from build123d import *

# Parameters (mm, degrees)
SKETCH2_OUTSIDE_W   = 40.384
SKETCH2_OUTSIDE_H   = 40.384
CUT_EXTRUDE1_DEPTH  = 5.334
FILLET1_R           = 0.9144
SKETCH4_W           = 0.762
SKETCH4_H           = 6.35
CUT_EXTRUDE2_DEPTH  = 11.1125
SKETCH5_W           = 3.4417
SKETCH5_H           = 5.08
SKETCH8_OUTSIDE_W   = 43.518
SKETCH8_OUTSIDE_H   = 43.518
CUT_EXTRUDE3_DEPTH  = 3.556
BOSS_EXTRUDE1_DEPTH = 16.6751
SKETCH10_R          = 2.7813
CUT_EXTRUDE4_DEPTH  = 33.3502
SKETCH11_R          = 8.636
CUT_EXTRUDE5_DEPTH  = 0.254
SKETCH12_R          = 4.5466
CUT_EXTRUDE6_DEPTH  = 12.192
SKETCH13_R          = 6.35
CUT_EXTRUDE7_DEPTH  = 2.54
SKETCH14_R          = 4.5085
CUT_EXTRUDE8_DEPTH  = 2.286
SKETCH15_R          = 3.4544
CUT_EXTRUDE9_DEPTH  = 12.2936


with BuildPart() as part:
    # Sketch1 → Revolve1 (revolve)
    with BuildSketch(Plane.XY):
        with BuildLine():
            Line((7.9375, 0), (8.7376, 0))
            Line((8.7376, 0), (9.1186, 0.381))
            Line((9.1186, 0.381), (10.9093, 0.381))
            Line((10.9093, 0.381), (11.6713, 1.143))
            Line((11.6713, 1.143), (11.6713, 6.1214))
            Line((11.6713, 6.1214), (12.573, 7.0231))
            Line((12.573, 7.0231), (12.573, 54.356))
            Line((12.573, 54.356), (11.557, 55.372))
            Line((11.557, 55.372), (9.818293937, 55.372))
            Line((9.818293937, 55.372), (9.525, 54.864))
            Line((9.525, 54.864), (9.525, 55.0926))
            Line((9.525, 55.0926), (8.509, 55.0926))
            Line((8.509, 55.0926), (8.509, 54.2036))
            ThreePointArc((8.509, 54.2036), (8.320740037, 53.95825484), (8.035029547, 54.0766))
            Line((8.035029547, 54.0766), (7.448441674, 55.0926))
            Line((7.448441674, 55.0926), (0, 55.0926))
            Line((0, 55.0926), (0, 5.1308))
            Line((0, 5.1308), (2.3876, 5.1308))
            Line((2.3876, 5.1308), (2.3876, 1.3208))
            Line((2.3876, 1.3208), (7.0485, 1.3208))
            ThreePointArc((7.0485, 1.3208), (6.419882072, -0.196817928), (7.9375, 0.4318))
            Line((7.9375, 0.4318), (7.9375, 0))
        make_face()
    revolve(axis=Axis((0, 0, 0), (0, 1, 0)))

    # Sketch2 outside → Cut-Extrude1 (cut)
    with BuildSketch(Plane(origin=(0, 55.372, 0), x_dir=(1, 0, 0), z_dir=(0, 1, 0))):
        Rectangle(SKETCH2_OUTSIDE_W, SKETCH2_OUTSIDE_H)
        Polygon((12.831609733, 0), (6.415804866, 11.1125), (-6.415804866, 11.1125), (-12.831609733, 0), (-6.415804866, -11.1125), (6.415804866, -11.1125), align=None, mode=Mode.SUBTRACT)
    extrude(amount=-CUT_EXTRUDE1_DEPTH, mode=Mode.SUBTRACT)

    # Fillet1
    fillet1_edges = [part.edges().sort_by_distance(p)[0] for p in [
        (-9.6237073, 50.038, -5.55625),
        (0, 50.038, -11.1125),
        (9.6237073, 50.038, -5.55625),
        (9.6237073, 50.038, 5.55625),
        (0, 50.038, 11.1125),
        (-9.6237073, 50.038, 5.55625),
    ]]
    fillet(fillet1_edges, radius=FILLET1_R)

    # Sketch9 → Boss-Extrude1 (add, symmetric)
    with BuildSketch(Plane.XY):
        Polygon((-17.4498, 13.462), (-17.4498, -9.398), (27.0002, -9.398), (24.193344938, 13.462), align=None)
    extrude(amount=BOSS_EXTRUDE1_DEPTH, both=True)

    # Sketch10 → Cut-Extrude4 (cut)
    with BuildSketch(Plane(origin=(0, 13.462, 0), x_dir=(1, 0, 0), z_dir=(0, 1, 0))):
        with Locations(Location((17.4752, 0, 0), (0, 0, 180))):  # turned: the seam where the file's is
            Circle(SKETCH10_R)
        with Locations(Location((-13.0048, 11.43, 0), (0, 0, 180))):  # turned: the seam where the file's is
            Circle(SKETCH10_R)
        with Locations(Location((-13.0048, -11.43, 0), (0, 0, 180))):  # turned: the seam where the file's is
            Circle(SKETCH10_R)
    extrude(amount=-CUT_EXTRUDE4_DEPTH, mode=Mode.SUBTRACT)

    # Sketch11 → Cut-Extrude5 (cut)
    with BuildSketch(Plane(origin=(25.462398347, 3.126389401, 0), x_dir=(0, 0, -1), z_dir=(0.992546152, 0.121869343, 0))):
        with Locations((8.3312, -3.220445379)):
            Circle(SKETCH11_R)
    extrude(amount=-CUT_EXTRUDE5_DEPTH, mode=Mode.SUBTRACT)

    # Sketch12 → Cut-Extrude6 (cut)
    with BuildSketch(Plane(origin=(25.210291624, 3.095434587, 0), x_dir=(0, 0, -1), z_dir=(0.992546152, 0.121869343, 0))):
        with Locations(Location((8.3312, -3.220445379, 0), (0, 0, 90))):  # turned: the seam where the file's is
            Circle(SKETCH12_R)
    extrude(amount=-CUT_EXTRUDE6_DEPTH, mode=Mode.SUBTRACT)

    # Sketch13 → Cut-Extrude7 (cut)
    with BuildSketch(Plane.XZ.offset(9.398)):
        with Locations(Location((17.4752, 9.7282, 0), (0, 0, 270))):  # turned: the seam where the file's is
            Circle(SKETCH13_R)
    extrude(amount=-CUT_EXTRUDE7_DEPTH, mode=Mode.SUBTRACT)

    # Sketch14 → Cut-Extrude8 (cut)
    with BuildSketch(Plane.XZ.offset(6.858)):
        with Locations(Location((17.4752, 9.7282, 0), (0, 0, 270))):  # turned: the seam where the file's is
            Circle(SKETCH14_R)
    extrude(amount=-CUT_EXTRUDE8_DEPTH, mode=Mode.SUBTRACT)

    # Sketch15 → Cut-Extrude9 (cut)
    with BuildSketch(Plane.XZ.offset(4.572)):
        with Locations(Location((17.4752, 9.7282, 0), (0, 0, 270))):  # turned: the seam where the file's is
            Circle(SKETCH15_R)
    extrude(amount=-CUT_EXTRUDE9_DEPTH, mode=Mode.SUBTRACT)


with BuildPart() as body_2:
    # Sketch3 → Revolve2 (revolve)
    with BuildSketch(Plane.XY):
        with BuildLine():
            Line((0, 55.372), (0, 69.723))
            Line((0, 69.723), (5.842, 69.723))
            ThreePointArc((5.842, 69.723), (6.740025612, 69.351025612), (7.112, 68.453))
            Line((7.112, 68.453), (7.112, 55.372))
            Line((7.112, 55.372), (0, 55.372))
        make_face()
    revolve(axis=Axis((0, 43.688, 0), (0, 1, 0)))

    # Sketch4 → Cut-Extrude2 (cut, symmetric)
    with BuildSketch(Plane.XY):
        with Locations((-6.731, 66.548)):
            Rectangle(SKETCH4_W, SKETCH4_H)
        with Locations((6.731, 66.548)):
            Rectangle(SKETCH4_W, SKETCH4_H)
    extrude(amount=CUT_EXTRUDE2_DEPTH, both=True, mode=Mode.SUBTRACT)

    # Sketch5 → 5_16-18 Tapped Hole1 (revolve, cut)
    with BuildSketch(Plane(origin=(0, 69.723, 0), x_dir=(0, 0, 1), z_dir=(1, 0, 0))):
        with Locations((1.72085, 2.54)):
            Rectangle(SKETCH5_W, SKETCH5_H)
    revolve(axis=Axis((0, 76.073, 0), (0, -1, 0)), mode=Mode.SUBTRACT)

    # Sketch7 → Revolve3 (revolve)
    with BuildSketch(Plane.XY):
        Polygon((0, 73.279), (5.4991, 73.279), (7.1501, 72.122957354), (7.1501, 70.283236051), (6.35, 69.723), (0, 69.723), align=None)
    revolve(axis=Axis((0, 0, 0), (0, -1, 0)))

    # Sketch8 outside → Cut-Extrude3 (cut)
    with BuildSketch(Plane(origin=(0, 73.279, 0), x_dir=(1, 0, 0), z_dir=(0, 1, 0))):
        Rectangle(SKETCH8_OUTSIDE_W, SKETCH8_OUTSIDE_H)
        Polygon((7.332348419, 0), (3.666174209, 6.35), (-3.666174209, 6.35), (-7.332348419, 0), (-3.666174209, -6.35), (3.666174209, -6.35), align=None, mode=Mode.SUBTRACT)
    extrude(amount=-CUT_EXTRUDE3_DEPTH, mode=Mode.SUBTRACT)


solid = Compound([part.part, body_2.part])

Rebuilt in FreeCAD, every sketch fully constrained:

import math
import FreeCAD as App
import Part
import Sketcher
Q = App.Units.Quantity


def edges_at(feature, points):
    """Names of the edges that pass closest to the given points."""
    edges = feature.Shape.Edges
    near = lambda p: min(range(len(edges)), key=lambda i: edges[i].distToShape(Part.Vertex(*p))[0])
    return sorted({f"Edge{near(p) + 1}" for p in points})


def add_polygon(sketch, points):
    """Adds a closed chain of lines whose ends are joined by coincident constraints."""
    first, n = sketch.GeometryCount, len(points)
    for a, b in zip(points, points[1:] + points[:1]):
        sketch.addGeometry(Part.LineSegment(App.Vector(*a, 0), App.Vector(*b, 0)), False)
    for i in range(n):
        sketch.addConstraint(Sketcher.Constraint("Coincident", first + i, 2, first + (i + 1) % n, 1))

doc = App.newDocument("Part")
body = doc.addObject("PartDesign::Body", "Body")

# Sketch on XY plane
sketch1 = body.newObject("Sketcher::SketchObject", "Sketch")
sketch1.AttachmentSupport = (doc.getObject("XY_Plane"), [""])
sketch1.MapMode = "FlatFace"
sketch1.addGeometry([
    Part.LineSegment(App.Vector(7.94, 0, 0), App.Vector(8.74, 0, 0)),  # 0
    Part.LineSegment(App.Vector(8.74, 0, 0), App.Vector(9.12, 0.38, 0)),  # 1
    Part.LineSegment(App.Vector(9.12, 0.38, 0), App.Vector(10.91, 0.38, 0)),  # 2
    Part.LineSegment(App.Vector(10.91, 0.38, 0), App.Vector(11.67, 1.14, 0)),  # 3
    Part.LineSegment(App.Vector(11.67, 1.14, 0), App.Vector(11.67, 6.12, 0)),  # 4
    Part.LineSegment(App.Vector(11.67, 6.12, 0), App.Vector(12.57, 7.02, 0)),  # 5
    Part.LineSegment(App.Vector(12.57, 7.02, 0), App.Vector(12.57, 54.36, 0)),  # 6
    Part.LineSegment(App.Vector(12.57, 54.36, 0), App.Vector(11.56, 55.37, 0)),  # 7
    Part.LineSegment(App.Vector(11.56, 55.37, 0), App.Vector(9.82, 55.37, 0)),  # 8
    Part.LineSegment(App.Vector(9.82, 55.37, 0), App.Vector(9.53, 54.86, 0)),  # 9
    Part.LineSegment(App.Vector(9.53, 54.86, 0), App.Vector(9.53, 55.09, 0)),  # 10
    Part.LineSegment(App.Vector(9.53, 55.09, 0), App.Vector(8.51, 55.09, 0)),  # 11
    Part.LineSegment(App.Vector(8.51, 55.09, 0), App.Vector(8.51, 54.2, 0)),  # 12
    Part.ArcOfCircle(Part.Circle(App.Vector(8.26, 54.2, 0), App.Vector(0, 0, 1), 0.25), math.radians(-150), math.radians(0)),  # 13
    Part.LineSegment(App.Vector(8.04, 54.08, 0), App.Vector(7.45, 55.09, 0)),  # 14
    Part.LineSegment(App.Vector(7.45, 55.09, 0), App.Vector(0, 55.09, 0)),  # 15
    Part.LineSegment(App.Vector(0, 55.09, 0), App.Vector(0, 5.13, 0)),  # 16
    Part.LineSegment(App.Vector(0, 5.13, 0), App.Vector(2.39, 5.13, 0)),  # 17
    Part.LineSegment(App.Vector(2.39, 5.13, 0), App.Vector(2.39, 1.32, 0)),  # 18
    Part.LineSegment(App.Vector(2.39, 1.32, 0), App.Vector(7.05, 1.32, 0)),  # 19
    Part.ArcOfCircle(Part.Circle(App.Vector(7.05, 0.43, 0), App.Vector(0, 0, 1), 0.89), math.radians(90), math.radians(360)),  # 20
    Part.LineSegment(App.Vector(7.94, 0.43, 0), App.Vector(7.94, 0, 0)),  # 21
], False)
sketch1.addConstraint([
    Sketcher.Constraint("Coincident", 0, 2, 1, 1),
    Sketcher.Constraint("Coincident", 1, 2, 2, 1),
    Sketcher.Constraint("Coincident", 2, 2, 3, 1),
    Sketcher.Constraint("Coincident", 3, 2, 4, 1),
    Sketcher.Constraint("Coincident", 4, 2, 5, 1),
    Sketcher.Constraint("Coincident", 5, 2, 6, 1),
    Sketcher.Constraint("Coincident", 6, 2, 7, 1),
    Sketcher.Constraint("Coincident", 7, 2, 8, 1),
    Sketcher.Constraint("Coincident", 8, 2, 9, 1),
    Sketcher.Constraint("Coincident", 9, 2, 10, 1),
    Sketcher.Constraint("Coincident", 10, 2, 11, 1),
    Sketcher.Constraint("Coincident", 11, 2, 12, 1),
    Sketcher.Constraint("Tangent", 12, 2, 13, 2),
    Sketcher.Constraint("Tangent", 13, 1, 14, 1),
    Sketcher.Constraint("Coincident", 14, 2, 15, 1),
    Sketcher.Constraint("Coincident", 15, 2, 16, 1),
    Sketcher.Constraint("Coincident", 16, 2, 17, 1),
    Sketcher.Constraint("Coincident", 17, 2, 18, 1),
    Sketcher.Constraint("Coincident", 18, 2, 19, 1),
    Sketcher.Constraint("Tangent", 19, 2, 20, 1),
    Sketcher.Constraint("Tangent", 20, 2, 21, 1),
    Sketcher.Constraint("Coincident", 21, 2, 0, 1),
    Sketcher.Constraint("Horizontal", 0),
    Sketcher.Constraint("Horizontal", 2),
    Sketcher.Constraint("Vertical", 4),
    Sketcher.Constraint("Vertical", 6),
    Sketcher.Constraint("Horizontal", 8),
    Sketcher.Constraint("Vertical", 10),
    Sketcher.Constraint("Horizontal", 11),
    Sketcher.Constraint("Vertical", 12),
    Sketcher.Constraint("Horizontal", 15),
    Sketcher.Constraint("Vertical", 16),
    Sketcher.Constraint("Horizontal", 17),
    Sketcher.Constraint("Vertical", 18),
    Sketcher.Constraint("Horizontal", 19),
    Sketcher.Constraint("Vertical", 21),
    Sketcher.Constraint("PointOnObject", 0, 2, -1),
    Sketcher.Constraint("PointOnObject", 15, 2, -2),
    Sketcher.Constraint("Parallel", 1, 3),
    Sketcher.Constraint("Parallel", 3, 5),
    Sketcher.Constraint("Perpendicular", 5, 7),
    Sketcher.Constraint("Horizontal", 11, 2, 14, 2),
    Sketcher.Constraint("Radius", 13, Q("0.01 in")),
    Sketcher.Constraint("Angle", 1, Q("45 deg")),
    Sketcher.Constraint("Angle", 9, Q("-120 deg")),
    Sketcher.Constraint("Angle", 14, Q("120 deg")),
    Sketcher.Constraint("Radius", 20, Q("0.035 in")),
    Sketcher.Constraint("DistanceX", 11, 2, 11, 1, Q("0.04 in")),
    Sketcher.Constraint("DistanceY", 18, 2, 18, 1, Q("0.15 in")),
    Sketcher.Constraint("DistanceX", 17, 1, 17, 2, Q("0.094 in")),
    Sketcher.Constraint("DistanceY", 4, 1, 4, 2, Q("0.196 in")),
    Sketcher.Constraint("DistanceY", 10, 1, 10, 2, Q("0.009 in")),
    Sketcher.Constraint("DistanceY", 12, 2, 12, 1, Q("0.035 in")),
    Sketcher.Constraint("DistanceY", 16, 2, 16, 1, Q("1.967 in")),
    Sketcher.Constraint("DistanceY", 21, 2, 21, 1, Q("0.017 in")),
    Sketcher.Constraint("DistanceY", -1, 1, 6, 2, Q("2.14 in")),
    Sketcher.Constraint("DistanceY", -1, 1, 7, 2, Q("2.18 in")),
    Sketcher.Constraint("DistanceX", 2, 2, 3, 2, Q("0.03 in")),
    Sketcher.Constraint("DistanceX", 13, 3, 6, 2, Q("0.17 in")),
    Sketcher.Constraint("DistanceX", 17, 2, 0, 2, Q("0.25 in")),
    Sketcher.Constraint("DistanceX", 0, 1, 0, 2, Q("0.0315 in")),
    Sketcher.Constraint("DistanceX", 2, 1, 2, 2, Q("0.0705 in")),
    Sketcher.Constraint("DistanceY", 6, 1, 6, 2, Q("1.8635 in")),
    Sketcher.Constraint("DistanceX", -1, 1, 1, 2, Q("0.359 in")),
])
revolution = body.newObject("PartDesign::Revolution", "Revolution")
revolution.Profile = sketch1
revolution.ReferenceAxis = (sketch1, ["V_Axis"])
revolution.Angle = 360

# Sketch on XZ plane
sketch2 = body.newObject("Sketcher::SketchObject", "Sketch001")
sketch2.AttachmentSupport = (doc.getObject("XZ_Plane"), [""])
sketch2.MapMode = "FlatFace"
sketch2.AttachmentOffset = App.Placement(App.Vector(0, 0, -2.18 * 25.4), App.Rotation())
add_polygon(sketch2, [(-20, -20), (-20, 20), (20, 20), (20, -20)])  # lines 0-3
add_polygon(sketch2, [(6, -11), (13, 0), (6, 11), (-6, 11), (-13, 0), (-6, -11)])  # lines 4-9
sketch2.addConstraint([
    Sketcher.Constraint("Vertical", 0),
    Sketcher.Constraint("Horizontal", 1),
    Sketcher.Constraint("Vertical", 2),
    Sketcher.Constraint("Horizontal", 3),
    Sketcher.Constraint("Horizontal", 6),
    Sketcher.Constraint("Horizontal", 9),
    Sketcher.Constraint("Symmetric", 0, 2, 2, 2, -1, 1),
    Sketcher.Constraint("Symmetric", 4, 2, 7, 2, -1, 1),
    Sketcher.Constraint("Symmetric", 5, 2, 8, 2, -1, 1),
    Sketcher.Constraint("PointOnObject", 4, 2, -1),
    Sketcher.Constraint("Parallel", 4, 7),
    Sketcher.Constraint("Vertical", 6, 2, 8, 2),
    Sketcher.Constraint("Equal", 3, 0),
    Sketcher.Constraint("Angle", 4, Q("60 deg")),
    Sketcher.Constraint("DistanceY", -1, 1, 5, 2, Q("0.4375 in")),
    Sketcher.Constraint("DistanceX", 1, 1, 1, 2, Q("40.384 mm")),
    Sketcher.Constraint("DistanceX", 6, 2, 6, 1, Q("12.83161 mm")),
])
pocket1 = body.newObject("PartDesign::Pocket", "Pocket")
pocket1.Profile = sketch2
pocket1.Length = Q("0.21 in")
pocket1.Reversed = True
doc.recompute()

fillet = body.newObject("PartDesign::Fillet", "Fillet")
fillet.Base = (pocket1, edges_at(pocket1, [
    (-9.624, 50.038, -5.556),
    (0, 50.038, -11.113),
    (9.624, 50.038, -5.556),
    (9.624, 50.038, 5.556),
    (0, 50.038, 11.113),
    (-9.624, 50.038, 5.556),
]))
fillet.Radius = Q("0.036 in")

# Sketch on XY plane
sketch3 = body.newObject("Sketcher::SketchObject", "Sketch002")
sketch3.AttachmentSupport = (doc.getObject("XY_Plane"), [""])
sketch3.MapMode = "FlatFace"
add_polygon(sketch3, [(-17, 13), (-17, -9), (27, -9), (24, 13)])  # lines 0-3
sketch3.addConstraint([
    Sketcher.Constraint("Vertical", 0),
    Sketcher.Constraint("Horizontal", 1),
    Sketcher.Constraint("Horizontal", 3),
    Sketcher.Constraint("DistanceY", 0, 2, 0, 1, Q("0.9 in")),
    Sketcher.Constraint("Angle", 2, Q("97 deg")),
    Sketcher.Constraint("DistanceX", 1, 1, 1, 2, Q("1.75 in")),
    Sketcher.Constraint("DistanceY", 0, 2, -1, 1, Q("0.37 in")),
    Sketcher.Constraint("DistanceX", 0, 2, -1, 1, Q("0.687 in")),
])
pad1 = body.newObject("PartDesign::Pad", "Pad")
pad1.Profile = sketch3
pad1.Length = Q("1.313 in")
pad1.Midplane = True

# Sketch on XZ plane
sketch4 = body.newObject("Sketcher::SketchObject", "Sketch003")
sketch4.AttachmentSupport = (doc.getObject("XZ_Plane"), [""])
sketch4.MapMode = "FlatFace"
sketch4.AttachmentOffset = App.Placement(App.Vector(0, 0, -0.53 * 25.4), App.Rotation())
sketch4.addGeometry([
    Part.Circle(App.Vector(17.5, 0, 0), App.Vector(0, 0, 1), 2.8),
    Part.Circle(App.Vector(-13, -11.4, 0), App.Vector(0, 0, 1), 2.8),
    Part.Circle(App.Vector(-13, 11.4, 0), App.Vector(0, 0, 1), 2.8),
], False)
sketch4.addConstraint([
    Sketcher.Constraint("Equal", 0, 1),
    Sketcher.Constraint("Equal", 1, 2),
    Sketcher.Constraint("Symmetric", 1, 3, 2, 3, -1),
    Sketcher.Constraint("PointOnObject", 0, 3, -1),
    Sketcher.Constraint("Diameter", 0, Q("0.219 in")),
    Sketcher.Constraint("DistanceX", 1, 3, 0, 3, Q("1.2 in")),
    Sketcher.Constraint("DistanceY", 1, 3, 2, 3, Q("0.9 in")),
    Sketcher.Constraint("DistanceX", -1, 1, 0, 3, Q("0.688 in")),
])
pocket2 = body.newObject("PartDesign::Pocket", "Pocket001")
pocket2.Profile = sketch4
pocket2.Length = Q("1.313 in")
pocket2.Reversed = True

# Sketch on an angled plane
sketch5 = body.newObject("Sketcher::SketchObject", "Sketch004")
sketch5.Placement = App.Placement(App.Vector(25.462398, 3.126389, 0), App.Rotation(App.Vector(0, 0, -1), App.Vector(-0.121869343, 0.992546152, 0), App.Vector(0.992546152, 0.121869343, 0), "ZXY"))
sketch5.addGeometry(Part.Circle(App.Vector(8, -3, 0), App.Vector(0, 0, 1), 9), False)
sketch5.addConstraint([
    Sketcher.Constraint("Diameter", 0, Q("0.68 in")),
    Sketcher.Constraint("DistanceX", -1, 1, 0, 3, Q("0.328 in")),
    Sketcher.Constraint("DistanceY", 0, 3, -1, 1, Q("3.220445 mm")),
])
pocket3 = body.newObject("PartDesign::Pocket", "Pocket002")
pocket3.Profile = sketch5
pocket3.Length = Q("0.01 in")

# Sketch on an angled plane
sketch6 = body.newObject("Sketcher::SketchObject", "Sketch005")
sketch6.Placement = App.Placement(App.Vector(25.210292, 3.095435, 0), App.Rotation(App.Vector(0, 0, -1), App.Vector(-0.121869343, 0.992546152, 0), App.Vector(0.992546152, 0.121869343, 0), "ZXY"))
sketch6.addGeometry(Part.Circle(App.Vector(8.3, -3.2, 0), App.Vector(0, 0, 1), 4.5), False)
sketch6.addConstraint([
    Sketcher.Constraint("Diameter", 0, Q("0.358 in")),
    Sketcher.Constraint("DistanceX", -1, 1, 0, 3, Q("0.328 in")),
    Sketcher.Constraint("DistanceY", 0, 3, -1, 1, Q("3.220445 mm")),
])
pocket4 = body.newObject("PartDesign::Pocket", "Pocket003")
pocket4.Profile = sketch6
pocket4.Length = Q("0.48 in")

# Sketch on XZ plane
sketch7 = body.newObject("Sketcher::SketchObject", "Sketch006")
sketch7.AttachmentSupport = (doc.getObject("XZ_Plane"), [""])
sketch7.MapMode = "FlatFace"
sketch7.AttachmentOffset = App.Placement(App.Vector(0, 0, 0.37 * 25.4), App.Rotation())
sketch7.addGeometry(Part.Circle(App.Vector(17, 10, 0), App.Vector(0, 0, 1), 6), False)
sketch7.addConstraint([
    Sketcher.Constraint("Diameter", 0, Q("0.5 in")),
    Sketcher.Constraint("DistanceX", -1, 1, 0, 3, Q("0.688 in")),
    Sketcher.Constraint("DistanceY", -1, 1, 0, 3, Q("0.383 in")),
])
pocket5 = body.newObject("PartDesign::Pocket", "Pocket004")
pocket5.Profile = sketch7
pocket5.Length = Q("0.1 in")

# Sketch on XZ plane
sketch8 = body.newObject("Sketcher::SketchObject", "Sketch007")
sketch8.AttachmentSupport = (doc.getObject("XZ_Plane"), [""])
sketch8.MapMode = "FlatFace"
sketch8.AttachmentOffset = App.Placement(App.Vector(0, 0, 0.27 * 25.4), App.Rotation())
sketch8.addGeometry(Part.Circle(App.Vector(17.5, 9.7, 0), App.Vector(0, 0, 1), 4.5), False)
sketch8.addConstraint([
    Sketcher.Constraint("Diameter", 0, Q("0.355 in")),
    Sketcher.Constraint("DistanceX", -1, 1, 0, 3, Q("0.688 in")),
    Sketcher.Constraint("DistanceY", -1, 1, 0, 3, Q("0.383 in")),
])
pocket6 = body.newObject("PartDesign::Pocket", "Pocket005")
pocket6.Profile = sketch8
pocket6.Length = Q("0.09 in")

# Sketch on XZ plane
sketch9 = body.newObject("Sketcher::SketchObject", "Sketch008")
sketch9.AttachmentSupport = (doc.getObject("XZ_Plane"), [""])
sketch9.MapMode = "FlatFace"
sketch9.AttachmentOffset = App.Placement(App.Vector(0, 0, 0.18 * 25.4), App.Rotation())
sketch9.addGeometry(Part.Circle(App.Vector(17.5, 9.7, 0), App.Vector(0, 0, 1), 3.5), False)
sketch9.addConstraint([
    Sketcher.Constraint("Diameter", 0, Q("0.272 in")),
    Sketcher.Constraint("DistanceX", -1, 1, 0, 3, Q("0.688 in")),
    Sketcher.Constraint("DistanceY", -1, 1, 0, 3, Q("0.383 in")),
])
pocket7 = body.newObject("PartDesign::Pocket", "Pocket006")
pocket7.Profile = sketch9
pocket7.Length = Q("0.484 in")
body2 = doc.addObject("PartDesign::Body", "Body001")

# Sketch on XY plane
sketch10 = body2.newObject("Sketcher::SketchObject", "Sketch009")
sketch10.AttachmentSupport = (doc.getObject("XY_Plane001"), [""])
sketch10.MapMode = "FlatFace"
sketch10.addGeometry([
    Part.LineSegment(App.Vector(0, 69.7, 0), App.Vector(0, 55.4, 0)),  # 0
    Part.LineSegment(App.Vector(0, 55.4, 0), App.Vector(7.1, 55.4, 0)),  # 1
    Part.LineSegment(App.Vector(7.1, 55.4, 0), App.Vector(7.1, 68.5, 0)),  # 2
    Part.ArcOfCircle(Part.Circle(App.Vector(5.8, 68.5, 0), App.Vector(0, 0, 1), 1.3), math.radians(0), math.radians(90)),  # 3
    Part.LineSegment(App.Vector(5.8, 69.7, 0), App.Vector(0, 69.7, 0)),  # 4
], False)
sketch10.addConstraint([
    Sketcher.Constraint("Coincident", 0, 2, 1, 1),
    Sketcher.Constraint("Coincident", 1, 2, 2, 1),
    Sketcher.Constraint("Tangent", 2, 2, 3, 1),
    Sketcher.Constraint("Tangent", 3, 2, 4, 1),
    Sketcher.Constraint("Coincident", 4, 2, 0, 1),
    Sketcher.Constraint("Vertical", 0),
    Sketcher.Constraint("Horizontal", 1),
    Sketcher.Constraint("Vertical", 2),
    Sketcher.Constraint("Horizontal", 4),
    Sketcher.Constraint("PointOnObject", 0, 2, -2),
    Sketcher.Constraint("Radius", 3, Q("0.05 in")),
    Sketcher.Constraint("DistanceX", 1, 1, 1, 2, Q("0.28 in")),
    Sketcher.Constraint("DistanceY", 0, 2, 0, 1, Q("0.565 in")),
    Sketcher.Constraint("DistanceY", -1, 1, 0, 2, Q("2.18 in")),
])
revolution2 = body2.newObject("PartDesign::Revolution", "Revolution001")
revolution2.Profile = sketch10
revolution2.ReferenceAxis = (sketch10, ["V_Axis"])
revolution2.Angle = 360

# Sketch on XY plane
sketch11 = body2.newObject("Sketcher::SketchObject", "Sketch010")
sketch11.AttachmentSupport = (doc.getObject("XY_Plane001"), [""])
sketch11.MapMode = "FlatFace"
add_polygon(sketch11, [(-7.1, 69.7), (-7.1, 63.4), (-6.3, 63.4), (-6.3, 69.7)])  # lines 0-3
add_polygon(sketch11, [(6.3, 69.7), (6.3, 63.4), (7.1, 63.4), (7.1, 69.7)])  # lines 4-7
sketch11.addConstraint([
    Sketcher.Constraint("Vertical", 0),
    Sketcher.Constraint("Horizontal", 1),
    Sketcher.Constraint("Vertical", 2),
    Sketcher.Constraint("Horizontal", 3),
    Sketcher.Constraint("Vertical", 4),
    Sketcher.Constraint("Horizontal", 5),
    Sketcher.Constraint("Vertical", 6),
    Sketcher.Constraint("Horizontal", 7),
    Sketcher.Constraint("Symmetric", 1, 2, 4, 2, -2),
    Sketcher.Constraint("Symmetric", 3, 2, 6, 2, -2),
    Sketcher.Constraint("DistanceX", 1, 1, 1, 2, Q("0.03 in")),
    Sketcher.Constraint("DistanceY", 0, 2, 0, 1, Q("0.25 in")),
    Sketcher.Constraint("DistanceX", 1, 2, 4, 2, Q("0.5 in")),
    Sketcher.Constraint("DistanceY", -1, 1, 0, 2, Q("2.495 in")),
])
pocket8 = body2.newObject("PartDesign::Pocket", "Pocket007")
pocket8.Profile = sketch11
pocket8.Length = Q("0.875 in")
pocket8.Midplane = True

# Sketch on YZ plane
sketch12 = body2.newObject("Sketcher::SketchObject", "Sketch011")
sketch12.AttachmentSupport = (doc.getObject("YZ_Plane001"), [""])
sketch12.MapMode = "FlatFace"
add_polygon(sketch12, [(64.6, 0), (69.7, 0), (69.7, 3.4), (64.6, 3.4)])  # lines 0-3
sketch12.addConstraint([
    Sketcher.Constraint("Horizontal", 0),
    Sketcher.Constraint("Vertical", 1),
    Sketcher.Constraint("Horizontal", 2),
    Sketcher.Constraint("Vertical", 3),
    Sketcher.Constraint("PointOnObject", 0, 2, -1),
    Sketcher.Constraint("DistanceX", 0, 1, 0, 2, Q("0.2 in")),
    Sketcher.Constraint("DistanceY", 1, 1, 1, 2, Q("0.1355 in")),
    Sketcher.Constraint("DistanceX", -1, 1, 0, 2, Q("2.745 in")),
])
groove = body2.newObject("PartDesign::Groove", "Groove")
groove.Profile = sketch12
groove.ReferenceAxis = (sketch12, ["H_Axis"])
groove.Angle = 360

# Sketch on XY plane
sketch13 = body2.newObject("Sketcher::SketchObject", "Sketch012")
sketch13.AttachmentSupport = (doc.getObject("XY_Plane001"), [""])
sketch13.MapMode = "FlatFace"
add_polygon(sketch13, [(5.5, 73.3), (0, 73.3), (0, 69.7), (6.3, 69.7), (7.2, 70.3), (7.2, 72.1)])  # lines 0-5
sketch13.addConstraint([
    Sketcher.Constraint("Horizontal", 0),
    Sketcher.Constraint("Vertical", 1),
    Sketcher.Constraint("Horizontal", 2),
    Sketcher.Constraint("Vertical", 4),
    Sketcher.Constraint("PointOnObject", 0, 2, -2),
    Sketcher.Constraint("Angle", 3, Q("35 deg")),
    Sketcher.Constraint("Angle", 5, Q("145 deg")),
    Sketcher.Constraint("DistanceX", 2, 1, 2, 2, Q("0.25 in")),
    Sketcher.Constraint("DistanceY", 1, 2, 1, 1, Q("0.14 in")),
    Sketcher.Constraint("DistanceX", 0, 2, 0, 1, Q("0.2165 in")),
    Sketcher.Constraint("DistanceY", -1, 1, 0, 2, Q("2.885 in")),
    Sketcher.Constraint("DistanceX", 5, 2, 4, 2, Q("0.065 in")),
])
revolution3 = body2.newObject("PartDesign::Revolution", "Revolution002")
revolution3.Profile = sketch13
revolution3.ReferenceAxis = (sketch13, ["V_Axis"])
revolution3.Angle = 360

# Sketch on XZ plane
sketch14 = body2.newObject("Sketcher::SketchObject", "Sketch013")
sketch14.AttachmentSupport = (doc.getObject("XZ_Plane001"), [""])
sketch14.MapMode = "FlatFace"
sketch14.AttachmentOffset = App.Placement(App.Vector(0, 0, -2.885 * 25.4), App.Rotation())
add_polygon(sketch14, [(-22, -22), (-22, 22), (22, 22), (22, -22)])  # lines 0-3
add_polygon(sketch14, [(4, -6), (7, 0), (4, 6), (-4, 6), (-7, 0), (-4, -6)])  # lines 4-9
sketch14.addConstraint([
    Sketcher.Constraint("Vertical", 0),
    Sketcher.Constraint("Horizontal", 1),
    Sketcher.Constraint("Vertical", 2),
    Sketcher.Constraint("Horizontal", 3),
    Sketcher.Constraint("Horizontal", 6),
    Sketcher.Constraint("Horizontal", 9),
    Sketcher.Constraint("Symmetric", 0, 2, 2, 2, -1, 1),
    Sketcher.Constraint("Symmetric", 4, 2, 7, 2, -1, 1),
    Sketcher.Constraint("Symmetric", 5, 2, 8, 2, -1, 1),
    Sketcher.Constraint("PointOnObject", 4, 2, -1),
    Sketcher.Constraint("Parallel", 4, 7),
    Sketcher.Constraint("Vertical", 6, 2, 8, 2),
    Sketcher.Constraint("Equal", 3, 0),
    Sketcher.Constraint("Angle", 4, Q("60 deg")),
    Sketcher.Constraint("DistanceY", 8, 2, 6, 2, Q("0.5 in")),
    Sketcher.Constraint("DistanceX", 1, 1, 1, 2, Q("43.518 mm")),
    Sketcher.Constraint("DistanceX", 6, 2, 6, 1, Q("7.332348 mm")),
])
pocket9 = body2.newObject("PartDesign::Pocket", "Pocket008")
pocket9.Profile = sketch14
pocket9.Length = Q("0.14 in")
pocket9.Reversed = True

doc.recompute()
